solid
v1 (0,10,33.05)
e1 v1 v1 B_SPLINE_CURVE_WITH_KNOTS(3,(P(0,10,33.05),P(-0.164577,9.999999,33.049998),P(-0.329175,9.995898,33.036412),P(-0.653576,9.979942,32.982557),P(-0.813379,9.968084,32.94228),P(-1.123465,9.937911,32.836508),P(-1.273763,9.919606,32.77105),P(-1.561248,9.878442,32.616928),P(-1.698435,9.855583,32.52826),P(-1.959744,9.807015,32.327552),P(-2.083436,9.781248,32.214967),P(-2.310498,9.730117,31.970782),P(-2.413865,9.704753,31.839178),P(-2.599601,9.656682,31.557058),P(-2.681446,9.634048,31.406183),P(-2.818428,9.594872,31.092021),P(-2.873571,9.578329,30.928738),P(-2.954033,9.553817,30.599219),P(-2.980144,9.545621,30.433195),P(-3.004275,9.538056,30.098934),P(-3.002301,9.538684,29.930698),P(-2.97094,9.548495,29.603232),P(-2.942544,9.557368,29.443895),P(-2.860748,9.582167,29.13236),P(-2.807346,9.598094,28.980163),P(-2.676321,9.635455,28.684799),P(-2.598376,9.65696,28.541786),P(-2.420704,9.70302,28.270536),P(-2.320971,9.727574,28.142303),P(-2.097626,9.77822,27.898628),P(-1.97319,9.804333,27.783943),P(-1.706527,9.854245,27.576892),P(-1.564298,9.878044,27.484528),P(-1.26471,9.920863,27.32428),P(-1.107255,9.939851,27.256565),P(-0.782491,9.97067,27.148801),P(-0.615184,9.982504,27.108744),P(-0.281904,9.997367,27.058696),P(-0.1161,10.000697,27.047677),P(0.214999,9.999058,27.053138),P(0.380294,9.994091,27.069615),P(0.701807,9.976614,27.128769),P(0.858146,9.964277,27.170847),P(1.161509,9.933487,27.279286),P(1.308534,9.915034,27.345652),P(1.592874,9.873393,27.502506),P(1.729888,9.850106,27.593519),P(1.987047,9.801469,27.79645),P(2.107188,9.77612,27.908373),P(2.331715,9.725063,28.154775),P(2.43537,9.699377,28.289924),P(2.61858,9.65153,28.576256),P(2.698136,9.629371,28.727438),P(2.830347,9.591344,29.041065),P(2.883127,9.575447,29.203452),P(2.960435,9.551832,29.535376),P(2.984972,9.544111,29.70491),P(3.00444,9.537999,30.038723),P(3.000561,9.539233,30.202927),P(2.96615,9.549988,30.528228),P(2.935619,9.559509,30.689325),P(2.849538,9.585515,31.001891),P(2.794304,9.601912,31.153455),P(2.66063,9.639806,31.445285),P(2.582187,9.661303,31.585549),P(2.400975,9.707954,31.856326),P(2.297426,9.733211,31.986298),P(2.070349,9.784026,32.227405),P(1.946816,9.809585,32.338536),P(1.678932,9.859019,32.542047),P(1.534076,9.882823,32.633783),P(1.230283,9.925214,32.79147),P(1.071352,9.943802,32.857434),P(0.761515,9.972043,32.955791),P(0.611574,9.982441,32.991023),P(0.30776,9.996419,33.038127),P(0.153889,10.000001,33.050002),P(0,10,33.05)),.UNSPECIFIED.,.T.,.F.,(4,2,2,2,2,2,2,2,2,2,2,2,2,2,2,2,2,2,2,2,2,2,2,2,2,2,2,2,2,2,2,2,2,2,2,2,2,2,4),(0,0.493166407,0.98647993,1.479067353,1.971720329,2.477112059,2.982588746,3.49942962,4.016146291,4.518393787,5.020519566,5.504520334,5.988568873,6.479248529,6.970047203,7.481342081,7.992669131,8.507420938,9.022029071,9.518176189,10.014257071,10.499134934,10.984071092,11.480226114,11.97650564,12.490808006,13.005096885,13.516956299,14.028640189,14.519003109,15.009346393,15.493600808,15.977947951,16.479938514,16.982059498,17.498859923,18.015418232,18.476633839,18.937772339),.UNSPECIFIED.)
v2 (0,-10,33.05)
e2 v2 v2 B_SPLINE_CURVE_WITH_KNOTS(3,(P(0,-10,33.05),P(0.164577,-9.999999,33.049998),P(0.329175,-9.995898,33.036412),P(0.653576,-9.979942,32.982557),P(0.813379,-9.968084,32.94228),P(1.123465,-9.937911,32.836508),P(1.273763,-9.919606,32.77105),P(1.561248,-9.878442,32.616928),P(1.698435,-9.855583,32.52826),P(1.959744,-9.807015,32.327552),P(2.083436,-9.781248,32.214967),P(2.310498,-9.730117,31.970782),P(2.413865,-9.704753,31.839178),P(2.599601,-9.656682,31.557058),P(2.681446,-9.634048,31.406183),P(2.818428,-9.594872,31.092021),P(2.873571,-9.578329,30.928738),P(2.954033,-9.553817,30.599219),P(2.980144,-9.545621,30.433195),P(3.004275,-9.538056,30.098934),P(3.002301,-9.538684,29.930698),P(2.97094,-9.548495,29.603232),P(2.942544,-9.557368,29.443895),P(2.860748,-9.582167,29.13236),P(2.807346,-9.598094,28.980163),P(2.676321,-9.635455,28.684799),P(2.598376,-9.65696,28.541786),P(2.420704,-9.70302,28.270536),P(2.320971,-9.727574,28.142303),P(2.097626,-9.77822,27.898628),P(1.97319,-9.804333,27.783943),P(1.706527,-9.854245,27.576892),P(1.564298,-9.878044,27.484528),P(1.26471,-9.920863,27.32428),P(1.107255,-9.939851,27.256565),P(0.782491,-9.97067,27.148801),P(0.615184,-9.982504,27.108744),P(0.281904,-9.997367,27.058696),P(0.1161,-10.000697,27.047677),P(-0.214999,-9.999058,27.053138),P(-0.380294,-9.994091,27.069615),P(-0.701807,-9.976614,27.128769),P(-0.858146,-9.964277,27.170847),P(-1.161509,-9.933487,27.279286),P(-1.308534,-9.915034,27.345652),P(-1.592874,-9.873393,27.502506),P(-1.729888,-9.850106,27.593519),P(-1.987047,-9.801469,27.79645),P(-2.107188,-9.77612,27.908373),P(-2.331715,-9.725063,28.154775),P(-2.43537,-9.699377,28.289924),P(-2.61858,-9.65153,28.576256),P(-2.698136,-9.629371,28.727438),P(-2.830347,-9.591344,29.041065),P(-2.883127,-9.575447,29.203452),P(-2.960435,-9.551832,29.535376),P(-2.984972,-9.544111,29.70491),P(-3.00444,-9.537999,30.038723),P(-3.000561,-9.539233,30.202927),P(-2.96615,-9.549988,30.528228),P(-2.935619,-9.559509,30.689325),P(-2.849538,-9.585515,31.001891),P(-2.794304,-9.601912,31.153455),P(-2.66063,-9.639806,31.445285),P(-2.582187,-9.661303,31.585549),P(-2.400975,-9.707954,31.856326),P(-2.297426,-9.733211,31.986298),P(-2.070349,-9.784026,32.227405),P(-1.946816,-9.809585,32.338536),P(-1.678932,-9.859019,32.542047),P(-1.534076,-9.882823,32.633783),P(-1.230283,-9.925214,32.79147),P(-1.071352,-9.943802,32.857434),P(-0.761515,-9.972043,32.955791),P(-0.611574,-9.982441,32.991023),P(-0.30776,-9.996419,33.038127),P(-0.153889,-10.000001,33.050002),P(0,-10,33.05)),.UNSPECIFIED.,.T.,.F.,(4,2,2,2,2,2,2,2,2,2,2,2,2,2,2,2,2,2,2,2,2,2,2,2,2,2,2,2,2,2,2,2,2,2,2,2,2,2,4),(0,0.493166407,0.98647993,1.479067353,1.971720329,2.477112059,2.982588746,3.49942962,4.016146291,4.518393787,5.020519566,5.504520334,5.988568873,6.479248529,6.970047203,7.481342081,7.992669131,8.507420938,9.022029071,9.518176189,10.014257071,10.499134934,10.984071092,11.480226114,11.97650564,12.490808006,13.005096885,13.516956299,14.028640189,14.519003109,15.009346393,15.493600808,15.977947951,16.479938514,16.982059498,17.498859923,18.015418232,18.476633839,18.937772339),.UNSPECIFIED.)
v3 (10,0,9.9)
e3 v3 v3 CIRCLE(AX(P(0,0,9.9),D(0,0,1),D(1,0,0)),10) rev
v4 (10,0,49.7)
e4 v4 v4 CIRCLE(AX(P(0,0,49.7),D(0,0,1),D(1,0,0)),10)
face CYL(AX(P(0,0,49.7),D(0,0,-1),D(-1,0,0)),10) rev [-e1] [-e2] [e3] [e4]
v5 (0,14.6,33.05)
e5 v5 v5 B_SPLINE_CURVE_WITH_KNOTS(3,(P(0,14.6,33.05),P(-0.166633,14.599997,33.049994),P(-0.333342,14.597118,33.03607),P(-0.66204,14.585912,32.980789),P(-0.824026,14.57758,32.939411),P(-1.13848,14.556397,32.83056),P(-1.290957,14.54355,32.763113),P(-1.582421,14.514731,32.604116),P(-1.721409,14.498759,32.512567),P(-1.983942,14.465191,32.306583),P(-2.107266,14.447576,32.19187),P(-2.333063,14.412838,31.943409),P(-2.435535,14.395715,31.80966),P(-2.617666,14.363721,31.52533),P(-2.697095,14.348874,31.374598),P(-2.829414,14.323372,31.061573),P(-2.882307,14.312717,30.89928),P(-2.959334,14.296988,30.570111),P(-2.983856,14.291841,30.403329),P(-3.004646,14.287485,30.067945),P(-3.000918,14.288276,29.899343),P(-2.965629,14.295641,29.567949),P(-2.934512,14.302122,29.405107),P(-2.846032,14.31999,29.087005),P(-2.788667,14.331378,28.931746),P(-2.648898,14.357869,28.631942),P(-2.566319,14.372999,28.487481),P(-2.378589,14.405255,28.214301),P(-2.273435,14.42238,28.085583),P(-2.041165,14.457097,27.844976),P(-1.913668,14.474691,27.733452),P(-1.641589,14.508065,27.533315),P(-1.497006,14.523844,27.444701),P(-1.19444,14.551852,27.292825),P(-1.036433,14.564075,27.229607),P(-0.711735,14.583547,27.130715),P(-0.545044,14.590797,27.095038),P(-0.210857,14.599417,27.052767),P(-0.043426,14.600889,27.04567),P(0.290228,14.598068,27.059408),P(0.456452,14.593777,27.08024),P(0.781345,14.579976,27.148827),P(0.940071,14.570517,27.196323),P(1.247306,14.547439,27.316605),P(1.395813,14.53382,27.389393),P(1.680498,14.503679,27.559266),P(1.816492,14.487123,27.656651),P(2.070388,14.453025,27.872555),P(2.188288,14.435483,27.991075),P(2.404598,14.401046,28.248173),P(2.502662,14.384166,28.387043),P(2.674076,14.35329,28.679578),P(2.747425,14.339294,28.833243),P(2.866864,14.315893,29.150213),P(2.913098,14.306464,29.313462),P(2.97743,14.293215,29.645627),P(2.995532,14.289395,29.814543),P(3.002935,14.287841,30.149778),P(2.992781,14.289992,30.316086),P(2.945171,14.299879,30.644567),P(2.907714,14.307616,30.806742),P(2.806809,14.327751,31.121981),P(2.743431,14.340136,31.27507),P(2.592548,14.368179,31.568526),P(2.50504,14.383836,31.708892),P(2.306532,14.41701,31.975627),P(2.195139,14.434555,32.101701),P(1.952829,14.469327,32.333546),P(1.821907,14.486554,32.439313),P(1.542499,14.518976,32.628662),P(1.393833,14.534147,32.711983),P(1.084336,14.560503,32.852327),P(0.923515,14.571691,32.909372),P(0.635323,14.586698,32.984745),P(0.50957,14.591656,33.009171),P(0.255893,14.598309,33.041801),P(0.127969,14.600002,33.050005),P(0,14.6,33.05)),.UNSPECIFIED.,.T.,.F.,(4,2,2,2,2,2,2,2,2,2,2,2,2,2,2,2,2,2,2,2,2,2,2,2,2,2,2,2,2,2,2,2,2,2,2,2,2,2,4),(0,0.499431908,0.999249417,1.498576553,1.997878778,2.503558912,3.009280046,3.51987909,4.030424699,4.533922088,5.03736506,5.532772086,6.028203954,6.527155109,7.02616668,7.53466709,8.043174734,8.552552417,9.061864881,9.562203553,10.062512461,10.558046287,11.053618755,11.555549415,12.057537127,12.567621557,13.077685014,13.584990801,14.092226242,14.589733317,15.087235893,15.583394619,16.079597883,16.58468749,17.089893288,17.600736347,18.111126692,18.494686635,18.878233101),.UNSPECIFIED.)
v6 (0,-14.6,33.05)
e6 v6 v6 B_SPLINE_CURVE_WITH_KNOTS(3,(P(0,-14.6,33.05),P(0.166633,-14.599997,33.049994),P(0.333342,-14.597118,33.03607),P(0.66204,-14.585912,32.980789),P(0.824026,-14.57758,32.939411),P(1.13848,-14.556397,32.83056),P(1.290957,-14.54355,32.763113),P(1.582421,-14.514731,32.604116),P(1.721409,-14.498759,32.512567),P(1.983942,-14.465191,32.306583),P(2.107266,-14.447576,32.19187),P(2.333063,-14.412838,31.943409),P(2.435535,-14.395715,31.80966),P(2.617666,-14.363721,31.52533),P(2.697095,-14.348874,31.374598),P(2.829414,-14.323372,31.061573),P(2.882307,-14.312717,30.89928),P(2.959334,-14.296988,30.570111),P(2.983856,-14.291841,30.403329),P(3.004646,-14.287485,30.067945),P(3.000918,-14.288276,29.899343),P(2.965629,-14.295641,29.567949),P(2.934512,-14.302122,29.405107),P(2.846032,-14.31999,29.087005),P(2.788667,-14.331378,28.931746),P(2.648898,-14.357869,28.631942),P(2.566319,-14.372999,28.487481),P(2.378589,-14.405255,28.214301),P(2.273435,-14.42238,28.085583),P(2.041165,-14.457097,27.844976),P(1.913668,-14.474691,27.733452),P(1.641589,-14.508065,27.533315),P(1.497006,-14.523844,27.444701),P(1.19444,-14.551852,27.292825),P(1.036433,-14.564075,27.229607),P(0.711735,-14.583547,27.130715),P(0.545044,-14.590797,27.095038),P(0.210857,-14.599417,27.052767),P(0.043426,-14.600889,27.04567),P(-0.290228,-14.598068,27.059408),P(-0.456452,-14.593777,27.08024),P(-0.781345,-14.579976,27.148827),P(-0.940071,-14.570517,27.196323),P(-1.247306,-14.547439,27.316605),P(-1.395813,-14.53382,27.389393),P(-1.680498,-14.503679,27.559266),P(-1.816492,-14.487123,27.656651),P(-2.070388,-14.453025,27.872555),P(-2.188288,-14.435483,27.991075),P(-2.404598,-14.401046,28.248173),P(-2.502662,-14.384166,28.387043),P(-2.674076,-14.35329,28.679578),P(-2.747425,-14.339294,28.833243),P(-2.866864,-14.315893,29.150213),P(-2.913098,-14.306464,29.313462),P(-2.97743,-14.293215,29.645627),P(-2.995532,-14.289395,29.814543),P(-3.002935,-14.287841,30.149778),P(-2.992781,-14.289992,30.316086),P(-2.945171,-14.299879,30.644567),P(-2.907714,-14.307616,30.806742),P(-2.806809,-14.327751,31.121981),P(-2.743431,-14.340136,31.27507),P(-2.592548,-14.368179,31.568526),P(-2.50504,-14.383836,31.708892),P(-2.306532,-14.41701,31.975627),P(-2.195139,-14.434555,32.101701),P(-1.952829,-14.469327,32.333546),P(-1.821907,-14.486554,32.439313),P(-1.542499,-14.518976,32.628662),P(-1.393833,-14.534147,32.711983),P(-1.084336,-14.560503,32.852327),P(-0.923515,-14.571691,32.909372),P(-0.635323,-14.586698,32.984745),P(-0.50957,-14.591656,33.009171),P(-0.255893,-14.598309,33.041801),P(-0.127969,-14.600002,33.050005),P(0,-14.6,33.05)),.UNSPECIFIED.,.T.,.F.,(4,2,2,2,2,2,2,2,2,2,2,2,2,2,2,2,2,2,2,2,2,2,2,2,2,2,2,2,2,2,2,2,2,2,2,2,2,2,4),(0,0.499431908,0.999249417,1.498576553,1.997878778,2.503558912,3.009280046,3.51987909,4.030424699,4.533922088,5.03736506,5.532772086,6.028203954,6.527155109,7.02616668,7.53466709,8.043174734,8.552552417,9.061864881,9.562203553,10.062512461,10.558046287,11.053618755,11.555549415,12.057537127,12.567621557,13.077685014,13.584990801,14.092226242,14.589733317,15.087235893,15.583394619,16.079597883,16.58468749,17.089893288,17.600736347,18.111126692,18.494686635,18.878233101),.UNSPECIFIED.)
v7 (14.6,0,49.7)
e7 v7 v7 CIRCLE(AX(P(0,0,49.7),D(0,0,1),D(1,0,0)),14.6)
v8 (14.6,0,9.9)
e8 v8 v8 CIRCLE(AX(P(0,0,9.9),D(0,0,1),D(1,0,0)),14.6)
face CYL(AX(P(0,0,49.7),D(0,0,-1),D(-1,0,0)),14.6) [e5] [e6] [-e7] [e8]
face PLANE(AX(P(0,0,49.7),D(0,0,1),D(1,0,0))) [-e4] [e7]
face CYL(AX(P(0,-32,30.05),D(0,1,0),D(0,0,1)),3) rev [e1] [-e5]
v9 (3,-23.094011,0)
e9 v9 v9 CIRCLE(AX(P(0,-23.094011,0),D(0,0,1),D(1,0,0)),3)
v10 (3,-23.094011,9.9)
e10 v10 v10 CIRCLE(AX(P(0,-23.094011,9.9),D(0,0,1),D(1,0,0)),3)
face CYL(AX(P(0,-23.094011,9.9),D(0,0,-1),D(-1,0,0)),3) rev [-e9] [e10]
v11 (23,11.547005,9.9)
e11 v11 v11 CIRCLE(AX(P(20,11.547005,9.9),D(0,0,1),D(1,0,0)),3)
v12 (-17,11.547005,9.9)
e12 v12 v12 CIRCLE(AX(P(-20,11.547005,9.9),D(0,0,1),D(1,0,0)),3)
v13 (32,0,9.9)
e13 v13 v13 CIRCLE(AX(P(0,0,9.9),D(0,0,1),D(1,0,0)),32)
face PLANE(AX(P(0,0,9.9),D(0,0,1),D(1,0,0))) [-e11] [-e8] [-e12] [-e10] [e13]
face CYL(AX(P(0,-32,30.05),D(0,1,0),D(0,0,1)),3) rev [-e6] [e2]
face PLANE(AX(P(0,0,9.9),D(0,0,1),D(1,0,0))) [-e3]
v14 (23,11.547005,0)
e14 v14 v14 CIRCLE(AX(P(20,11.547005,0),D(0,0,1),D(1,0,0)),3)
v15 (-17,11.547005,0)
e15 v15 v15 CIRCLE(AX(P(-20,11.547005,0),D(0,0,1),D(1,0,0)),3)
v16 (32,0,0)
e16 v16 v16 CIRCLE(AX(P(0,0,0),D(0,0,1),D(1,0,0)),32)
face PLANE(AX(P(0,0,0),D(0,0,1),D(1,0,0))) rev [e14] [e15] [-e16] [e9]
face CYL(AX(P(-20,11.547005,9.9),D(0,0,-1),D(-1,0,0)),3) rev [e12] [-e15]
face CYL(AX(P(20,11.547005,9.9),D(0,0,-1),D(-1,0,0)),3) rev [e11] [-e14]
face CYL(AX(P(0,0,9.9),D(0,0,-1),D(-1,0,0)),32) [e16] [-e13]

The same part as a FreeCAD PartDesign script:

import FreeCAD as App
import Part
import Sketcher

V = App.Vector
Q = App.Units.Quantity

doc = App.newDocument("Part")
params = doc.addObject("Spreadsheet::Sheet", "Params")
for row, (alias, value) in enumerate([
    ("sketch1_diameter", "64 mm"),
    ("sketch1_diameter2", "6 mm"),
    ("pad1_length", "9.9 mm"),
    ("sketch2_diameter", "20 mm"),
    ("sketch2_diameter2", "29.2 mm"),
    ("pad2_length", "39.8 mm"),
    ("sketch3_diameter", "6 mm"),
], start=1):
    params.set(f"A{row}", alias)
    params.set(f"B{row}", "=" + value)
    params.setAlias(f"B{row}", alias)

body = doc.addObject("PartDesign::Body", "Body")

# Sketch on XY plane
sketch1 = doc.addObject("Sketcher::SketchObject", "Sketch")
body.addObject(sketch1)
sketch1.AttachmentSupport = (doc.XY_Plane, [""])
sketch1.MapMode = "FlatFace"
sketch1.addGeometry(Part.Circle(V(0, 0, 0), V(0, 0, 1), 32), False)
sketch1.addGeometry(Part.Circle(V(0, -23.094011, 0), V(0, 0, 1), 3), False)
sketch1.addGeometry(Part.Circle(V(-20, 11.547005, 0), V(0, 0, 1), 3), False)
sketch1.addGeometry(Part.Circle(V(20, 11.547005, 0), V(0, 0, 1), 3), False)
sketch1.addConstraint(Sketcher.Constraint("Coincident", 0, 3, -1, 1))
sketch1.addConstraint(Sketcher.Constraint("Equal", 1, 2))
sketch1.addConstraint(Sketcher.Constraint("Equal", 2, 3))
sketch1.addConstraint(Sketcher.Constraint("Symmetric", 2, 3, 3, 3, -2))
sketch1.addConstraint(Sketcher.Constraint("PointOnObject", 1, 3, -2))
sketch1.addConstraint(Sketcher.Constraint("Diameter", 0, Q("64 mm")))
sketch1.addConstraint(Sketcher.Constraint("Diameter", 1, Q("6 mm")))
sketch1.addConstraint(Sketcher.Constraint("DistanceX", 2, 3, -1, 1, Q("20 mm")))
sketch1.addConstraint(Sketcher.Constraint("DistanceY", 1, 3, -1, 1, Q("23.094011 mm")))
sketch1.addConstraint(Sketcher.Constraint("DistanceY", -1, 1, 2, 3, Q("11.547005 mm")))
sketch1.setExpression("Constraints[5]", "Params.sketch1_diameter")
sketch1.setExpression("Constraints[6]", "Params.sketch1_diameter2")
pad1 = doc.addObject("PartDesign::Pad", "Pad")
body.addObject(pad1)
pad1.Profile = sketch1
pad1.setExpression("Length", "Params.pad1_length")

# Sketch on XY plane
sketch2 = doc.addObject("Sketcher::SketchObject", "Sketch001")
body.addObject(sketch2)
sketch2.AttachmentSupport = (doc.XY_Plane, [""])
sketch2.MapMode = "FlatFace"
sketch2.AttachmentOffset = App.Placement(V(0, 0, 9.9), App.Rotation())
sketch2.addGeometry(Part.Circle(V(0, 0, 0), V(0, 0, 1), 14.6), False)
sketch2.addGeometry(Part.Circle(V(0, 0, 0), V(0, 0, 1), 10), False)
sketch2.addConstraint(Sketcher.Constraint("Coincident", 0, 3, -1, 1))
sketch2.addConstraint(Sketcher.Constraint("Coincident", 1, 3, -1, 1))
sketch2.addConstraint(Sketcher.Constraint("Diameter", 1, Q("20 mm")))
sketch2.addConstraint(Sketcher.Constraint("Diameter", 0, Q("29.2 mm")))
sketch2.setExpression("Constraints[2]", "Params.sketch2_diameter")
sketch2.setExpression("Constraints[3]", "Params.sketch2_diameter2")
pad2 = doc.addObject("PartDesign::Pad", "Pad001")
body.addObject(pad2)
pad2.Profile = sketch2
pad2.setExpression("Length", "Params.pad2_length")

# Sketch on XZ plane
sketch3 = doc.addObject("Sketcher::SketchObject", "Sketch002")
body.addObject(sketch3)
sketch3.AttachmentSupport = (doc.XZ_Plane, [""])
sketch3.MapMode = "FlatFace"
sketch3.addGeometry(Part.Circle(V(0, 30.05, 0), V(0, 0, 1), 3), False)
sketch3.addConstraint(Sketcher.Constraint("PointOnObject", 0, 3, -2))
sketch3.addConstraint(Sketcher.Constraint("Diameter", 0, Q("6 mm")))
sketch3.addConstraint(Sketcher.Constraint("DistanceY", -1, 1, 0, 3, Q("30.05 mm")))
sketch3.setExpression("Constraints[1]", "Params.sketch3_diameter")
pocket1 = doc.addObject("PartDesign::Pocket", "Pocket")
body.addObject(pocket1)
pocket1.Profile = sketch3
pocket1.Type = "ThroughAll"
pocket1.Midplane = True

doc.recompute()
